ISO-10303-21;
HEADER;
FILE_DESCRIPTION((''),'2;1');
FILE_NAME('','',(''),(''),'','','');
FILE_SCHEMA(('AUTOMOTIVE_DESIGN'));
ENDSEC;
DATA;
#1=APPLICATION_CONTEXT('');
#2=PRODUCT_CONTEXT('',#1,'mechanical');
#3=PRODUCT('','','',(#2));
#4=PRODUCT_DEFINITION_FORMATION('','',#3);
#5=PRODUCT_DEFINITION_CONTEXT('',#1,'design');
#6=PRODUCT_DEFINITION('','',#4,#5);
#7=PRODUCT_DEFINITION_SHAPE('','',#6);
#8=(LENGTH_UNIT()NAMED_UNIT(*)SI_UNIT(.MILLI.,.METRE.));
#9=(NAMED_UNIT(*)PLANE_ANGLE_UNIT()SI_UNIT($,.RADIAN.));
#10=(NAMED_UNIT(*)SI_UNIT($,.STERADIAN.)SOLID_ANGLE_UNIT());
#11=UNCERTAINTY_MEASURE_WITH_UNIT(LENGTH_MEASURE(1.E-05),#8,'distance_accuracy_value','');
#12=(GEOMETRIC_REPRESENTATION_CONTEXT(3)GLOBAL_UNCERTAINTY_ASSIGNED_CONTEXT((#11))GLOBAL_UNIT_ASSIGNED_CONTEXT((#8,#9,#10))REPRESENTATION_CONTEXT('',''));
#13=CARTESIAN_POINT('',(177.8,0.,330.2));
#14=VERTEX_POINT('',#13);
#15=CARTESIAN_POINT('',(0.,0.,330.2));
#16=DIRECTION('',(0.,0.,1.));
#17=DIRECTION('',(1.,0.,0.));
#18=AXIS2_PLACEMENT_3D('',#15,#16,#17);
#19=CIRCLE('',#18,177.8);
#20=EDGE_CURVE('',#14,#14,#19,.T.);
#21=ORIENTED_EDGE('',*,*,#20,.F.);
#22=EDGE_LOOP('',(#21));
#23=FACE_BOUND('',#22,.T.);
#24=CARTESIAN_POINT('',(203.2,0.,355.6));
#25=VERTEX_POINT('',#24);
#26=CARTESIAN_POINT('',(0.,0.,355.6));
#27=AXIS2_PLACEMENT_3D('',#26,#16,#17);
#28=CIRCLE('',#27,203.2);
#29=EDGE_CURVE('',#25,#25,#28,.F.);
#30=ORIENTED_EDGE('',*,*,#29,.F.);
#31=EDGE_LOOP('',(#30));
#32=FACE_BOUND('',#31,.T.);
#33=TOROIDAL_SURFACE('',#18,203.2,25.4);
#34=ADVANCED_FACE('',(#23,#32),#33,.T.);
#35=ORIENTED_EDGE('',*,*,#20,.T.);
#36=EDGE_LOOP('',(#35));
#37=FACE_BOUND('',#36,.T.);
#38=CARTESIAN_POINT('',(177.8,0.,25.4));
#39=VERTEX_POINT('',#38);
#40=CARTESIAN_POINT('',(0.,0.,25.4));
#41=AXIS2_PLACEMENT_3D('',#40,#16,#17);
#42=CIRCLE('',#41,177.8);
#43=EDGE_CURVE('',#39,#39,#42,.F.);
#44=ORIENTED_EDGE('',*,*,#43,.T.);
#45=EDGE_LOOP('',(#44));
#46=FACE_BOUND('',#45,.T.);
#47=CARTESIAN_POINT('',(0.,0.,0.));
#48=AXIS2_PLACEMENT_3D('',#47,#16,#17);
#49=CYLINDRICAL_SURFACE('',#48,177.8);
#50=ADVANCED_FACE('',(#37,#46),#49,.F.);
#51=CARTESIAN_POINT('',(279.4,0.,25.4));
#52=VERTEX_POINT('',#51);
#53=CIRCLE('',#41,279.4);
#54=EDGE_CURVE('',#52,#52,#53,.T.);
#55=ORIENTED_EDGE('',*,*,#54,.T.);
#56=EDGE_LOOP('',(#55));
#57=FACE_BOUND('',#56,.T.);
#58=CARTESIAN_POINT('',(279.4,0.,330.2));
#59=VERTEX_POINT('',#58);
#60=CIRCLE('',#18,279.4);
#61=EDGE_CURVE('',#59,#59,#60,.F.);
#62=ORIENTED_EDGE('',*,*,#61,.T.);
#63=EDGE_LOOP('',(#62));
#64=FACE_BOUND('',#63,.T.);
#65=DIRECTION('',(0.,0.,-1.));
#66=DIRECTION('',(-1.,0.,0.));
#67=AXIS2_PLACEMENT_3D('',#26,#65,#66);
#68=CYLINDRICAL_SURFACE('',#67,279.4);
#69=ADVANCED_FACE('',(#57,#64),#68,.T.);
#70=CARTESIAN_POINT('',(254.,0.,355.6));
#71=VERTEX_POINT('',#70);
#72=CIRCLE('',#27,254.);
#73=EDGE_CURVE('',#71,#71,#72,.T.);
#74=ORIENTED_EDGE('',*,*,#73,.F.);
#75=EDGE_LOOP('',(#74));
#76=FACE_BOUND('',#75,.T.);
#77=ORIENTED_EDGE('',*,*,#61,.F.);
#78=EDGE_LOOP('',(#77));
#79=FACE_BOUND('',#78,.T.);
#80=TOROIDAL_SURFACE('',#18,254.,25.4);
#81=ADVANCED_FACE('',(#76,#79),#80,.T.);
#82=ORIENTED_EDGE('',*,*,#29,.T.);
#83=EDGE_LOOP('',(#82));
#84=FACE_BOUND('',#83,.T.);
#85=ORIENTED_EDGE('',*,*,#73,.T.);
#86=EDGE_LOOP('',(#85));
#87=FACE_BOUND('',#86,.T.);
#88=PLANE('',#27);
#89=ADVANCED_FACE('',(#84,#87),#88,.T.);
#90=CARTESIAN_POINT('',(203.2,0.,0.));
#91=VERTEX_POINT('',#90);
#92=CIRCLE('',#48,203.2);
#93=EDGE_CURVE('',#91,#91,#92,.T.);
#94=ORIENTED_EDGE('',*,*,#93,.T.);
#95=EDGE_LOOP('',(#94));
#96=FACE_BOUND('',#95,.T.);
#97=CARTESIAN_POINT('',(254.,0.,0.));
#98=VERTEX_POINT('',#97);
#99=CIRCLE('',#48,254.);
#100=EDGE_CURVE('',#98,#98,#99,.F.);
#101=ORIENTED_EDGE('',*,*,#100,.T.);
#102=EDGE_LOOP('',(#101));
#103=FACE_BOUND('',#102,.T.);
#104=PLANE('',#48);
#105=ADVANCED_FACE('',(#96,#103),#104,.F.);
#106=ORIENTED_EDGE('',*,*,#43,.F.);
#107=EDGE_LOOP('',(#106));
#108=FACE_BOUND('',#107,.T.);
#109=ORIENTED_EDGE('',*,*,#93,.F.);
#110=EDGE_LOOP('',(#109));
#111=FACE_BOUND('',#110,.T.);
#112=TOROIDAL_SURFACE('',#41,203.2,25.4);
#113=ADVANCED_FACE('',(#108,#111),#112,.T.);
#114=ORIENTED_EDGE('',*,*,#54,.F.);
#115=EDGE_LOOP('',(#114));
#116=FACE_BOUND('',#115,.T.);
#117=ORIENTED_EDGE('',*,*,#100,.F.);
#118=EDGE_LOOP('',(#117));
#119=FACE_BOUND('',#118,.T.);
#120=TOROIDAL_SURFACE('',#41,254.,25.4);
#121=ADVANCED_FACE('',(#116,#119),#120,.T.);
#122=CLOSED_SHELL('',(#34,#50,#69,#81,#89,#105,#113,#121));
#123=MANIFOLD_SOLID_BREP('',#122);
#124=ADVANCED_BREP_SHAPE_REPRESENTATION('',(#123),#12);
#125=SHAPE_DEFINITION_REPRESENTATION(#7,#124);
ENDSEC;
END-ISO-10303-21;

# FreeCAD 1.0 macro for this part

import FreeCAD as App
import Part
import Sketcher
from FreeCAD import Vector
Q = App.Units.Quantity


def edges_at(feature, points):
    """Names of the edges that pass closest to the given points."""
    edges = feature.Shape.Edges
    near = lambda p: min(range(len(edges)), key=lambda i: edges[i].distToShape(Part.Vertex(*p))[0])
    return sorted({f"Edge{near(p) + 1}" for p in points})

doc = App.newDocument("Part")
body = doc.addObject("PartDesign::Body", "Body")

sketch1 = doc.addObject("Sketcher::SketchObject", "Sketch")
body.addObject(sketch1)
sketch1.AttachmentSupport = (doc.XY_Plane, [""])
sketch1.MapMode = "FlatFace"
sketch1.addGeometry(Part.Circle(Vector(0, 0, 0), Vector(0, 0, 1), 279), False)
sketch1.addConstraint([
    Sketcher.Constraint("Coincident", 0, 3, -1, 1),
    Sketcher.Constraint("Diameter", 0, Q("22 in")),
])
pad1 = doc.addObject("PartDesign::Pad", "Pad")
body.addObject(pad1)
pad1.Profile = sketch1
pad1.Length = Q("14 in")

sketch2 = doc.addObject("Sketcher::SketchObject", "Sketch001")
body.addObject(sketch2)
sketch2.AttachmentSupport = (doc.XY_Plane, [""])
sketch2.MapMode = "FlatFace"
sketch2.AttachmentOffset = App.Placement(Vector(0, 0, 14 * 25.4), App.Rotation())
sketch2.addGeometry(Part.Circle(Vector(0, 0, 0), Vector(0, 0, 1), 178), False)
sketch2.addConstraint([
    Sketcher.Constraint("Coincident", 0, 3, -1, 1),
    Sketcher.Constraint("Diameter", 0, Q("14 in")),
])
pocket1 = doc.addObject("PartDesign::Pocket", "Pocket")
body.addObject(pocket1)
pocket1.Profile = sketch2
pocket1.Type = "ThroughAll"
doc.recompute()

fillet = doc.addObject("PartDesign::Fillet", "Fillet")
body.addObject(fillet)
fillet.Base = (pocket1, edges_at(pocket1, [(-279.4, 0, 0), (-279.4, 0, 355.6)]))
fillet.Radius = Q("1 in")
doc.recompute()

fillet2 = doc.addObject("PartDesign::Fillet", "Fillet001")
body.addObject(fillet2)
fillet2.Base = (fillet, edges_at(fillet, [(-177.8, 0, 0), (-177.8, 0, 355.6)]))
fillet2.Radius = Q("1 in")

doc.recompute()
